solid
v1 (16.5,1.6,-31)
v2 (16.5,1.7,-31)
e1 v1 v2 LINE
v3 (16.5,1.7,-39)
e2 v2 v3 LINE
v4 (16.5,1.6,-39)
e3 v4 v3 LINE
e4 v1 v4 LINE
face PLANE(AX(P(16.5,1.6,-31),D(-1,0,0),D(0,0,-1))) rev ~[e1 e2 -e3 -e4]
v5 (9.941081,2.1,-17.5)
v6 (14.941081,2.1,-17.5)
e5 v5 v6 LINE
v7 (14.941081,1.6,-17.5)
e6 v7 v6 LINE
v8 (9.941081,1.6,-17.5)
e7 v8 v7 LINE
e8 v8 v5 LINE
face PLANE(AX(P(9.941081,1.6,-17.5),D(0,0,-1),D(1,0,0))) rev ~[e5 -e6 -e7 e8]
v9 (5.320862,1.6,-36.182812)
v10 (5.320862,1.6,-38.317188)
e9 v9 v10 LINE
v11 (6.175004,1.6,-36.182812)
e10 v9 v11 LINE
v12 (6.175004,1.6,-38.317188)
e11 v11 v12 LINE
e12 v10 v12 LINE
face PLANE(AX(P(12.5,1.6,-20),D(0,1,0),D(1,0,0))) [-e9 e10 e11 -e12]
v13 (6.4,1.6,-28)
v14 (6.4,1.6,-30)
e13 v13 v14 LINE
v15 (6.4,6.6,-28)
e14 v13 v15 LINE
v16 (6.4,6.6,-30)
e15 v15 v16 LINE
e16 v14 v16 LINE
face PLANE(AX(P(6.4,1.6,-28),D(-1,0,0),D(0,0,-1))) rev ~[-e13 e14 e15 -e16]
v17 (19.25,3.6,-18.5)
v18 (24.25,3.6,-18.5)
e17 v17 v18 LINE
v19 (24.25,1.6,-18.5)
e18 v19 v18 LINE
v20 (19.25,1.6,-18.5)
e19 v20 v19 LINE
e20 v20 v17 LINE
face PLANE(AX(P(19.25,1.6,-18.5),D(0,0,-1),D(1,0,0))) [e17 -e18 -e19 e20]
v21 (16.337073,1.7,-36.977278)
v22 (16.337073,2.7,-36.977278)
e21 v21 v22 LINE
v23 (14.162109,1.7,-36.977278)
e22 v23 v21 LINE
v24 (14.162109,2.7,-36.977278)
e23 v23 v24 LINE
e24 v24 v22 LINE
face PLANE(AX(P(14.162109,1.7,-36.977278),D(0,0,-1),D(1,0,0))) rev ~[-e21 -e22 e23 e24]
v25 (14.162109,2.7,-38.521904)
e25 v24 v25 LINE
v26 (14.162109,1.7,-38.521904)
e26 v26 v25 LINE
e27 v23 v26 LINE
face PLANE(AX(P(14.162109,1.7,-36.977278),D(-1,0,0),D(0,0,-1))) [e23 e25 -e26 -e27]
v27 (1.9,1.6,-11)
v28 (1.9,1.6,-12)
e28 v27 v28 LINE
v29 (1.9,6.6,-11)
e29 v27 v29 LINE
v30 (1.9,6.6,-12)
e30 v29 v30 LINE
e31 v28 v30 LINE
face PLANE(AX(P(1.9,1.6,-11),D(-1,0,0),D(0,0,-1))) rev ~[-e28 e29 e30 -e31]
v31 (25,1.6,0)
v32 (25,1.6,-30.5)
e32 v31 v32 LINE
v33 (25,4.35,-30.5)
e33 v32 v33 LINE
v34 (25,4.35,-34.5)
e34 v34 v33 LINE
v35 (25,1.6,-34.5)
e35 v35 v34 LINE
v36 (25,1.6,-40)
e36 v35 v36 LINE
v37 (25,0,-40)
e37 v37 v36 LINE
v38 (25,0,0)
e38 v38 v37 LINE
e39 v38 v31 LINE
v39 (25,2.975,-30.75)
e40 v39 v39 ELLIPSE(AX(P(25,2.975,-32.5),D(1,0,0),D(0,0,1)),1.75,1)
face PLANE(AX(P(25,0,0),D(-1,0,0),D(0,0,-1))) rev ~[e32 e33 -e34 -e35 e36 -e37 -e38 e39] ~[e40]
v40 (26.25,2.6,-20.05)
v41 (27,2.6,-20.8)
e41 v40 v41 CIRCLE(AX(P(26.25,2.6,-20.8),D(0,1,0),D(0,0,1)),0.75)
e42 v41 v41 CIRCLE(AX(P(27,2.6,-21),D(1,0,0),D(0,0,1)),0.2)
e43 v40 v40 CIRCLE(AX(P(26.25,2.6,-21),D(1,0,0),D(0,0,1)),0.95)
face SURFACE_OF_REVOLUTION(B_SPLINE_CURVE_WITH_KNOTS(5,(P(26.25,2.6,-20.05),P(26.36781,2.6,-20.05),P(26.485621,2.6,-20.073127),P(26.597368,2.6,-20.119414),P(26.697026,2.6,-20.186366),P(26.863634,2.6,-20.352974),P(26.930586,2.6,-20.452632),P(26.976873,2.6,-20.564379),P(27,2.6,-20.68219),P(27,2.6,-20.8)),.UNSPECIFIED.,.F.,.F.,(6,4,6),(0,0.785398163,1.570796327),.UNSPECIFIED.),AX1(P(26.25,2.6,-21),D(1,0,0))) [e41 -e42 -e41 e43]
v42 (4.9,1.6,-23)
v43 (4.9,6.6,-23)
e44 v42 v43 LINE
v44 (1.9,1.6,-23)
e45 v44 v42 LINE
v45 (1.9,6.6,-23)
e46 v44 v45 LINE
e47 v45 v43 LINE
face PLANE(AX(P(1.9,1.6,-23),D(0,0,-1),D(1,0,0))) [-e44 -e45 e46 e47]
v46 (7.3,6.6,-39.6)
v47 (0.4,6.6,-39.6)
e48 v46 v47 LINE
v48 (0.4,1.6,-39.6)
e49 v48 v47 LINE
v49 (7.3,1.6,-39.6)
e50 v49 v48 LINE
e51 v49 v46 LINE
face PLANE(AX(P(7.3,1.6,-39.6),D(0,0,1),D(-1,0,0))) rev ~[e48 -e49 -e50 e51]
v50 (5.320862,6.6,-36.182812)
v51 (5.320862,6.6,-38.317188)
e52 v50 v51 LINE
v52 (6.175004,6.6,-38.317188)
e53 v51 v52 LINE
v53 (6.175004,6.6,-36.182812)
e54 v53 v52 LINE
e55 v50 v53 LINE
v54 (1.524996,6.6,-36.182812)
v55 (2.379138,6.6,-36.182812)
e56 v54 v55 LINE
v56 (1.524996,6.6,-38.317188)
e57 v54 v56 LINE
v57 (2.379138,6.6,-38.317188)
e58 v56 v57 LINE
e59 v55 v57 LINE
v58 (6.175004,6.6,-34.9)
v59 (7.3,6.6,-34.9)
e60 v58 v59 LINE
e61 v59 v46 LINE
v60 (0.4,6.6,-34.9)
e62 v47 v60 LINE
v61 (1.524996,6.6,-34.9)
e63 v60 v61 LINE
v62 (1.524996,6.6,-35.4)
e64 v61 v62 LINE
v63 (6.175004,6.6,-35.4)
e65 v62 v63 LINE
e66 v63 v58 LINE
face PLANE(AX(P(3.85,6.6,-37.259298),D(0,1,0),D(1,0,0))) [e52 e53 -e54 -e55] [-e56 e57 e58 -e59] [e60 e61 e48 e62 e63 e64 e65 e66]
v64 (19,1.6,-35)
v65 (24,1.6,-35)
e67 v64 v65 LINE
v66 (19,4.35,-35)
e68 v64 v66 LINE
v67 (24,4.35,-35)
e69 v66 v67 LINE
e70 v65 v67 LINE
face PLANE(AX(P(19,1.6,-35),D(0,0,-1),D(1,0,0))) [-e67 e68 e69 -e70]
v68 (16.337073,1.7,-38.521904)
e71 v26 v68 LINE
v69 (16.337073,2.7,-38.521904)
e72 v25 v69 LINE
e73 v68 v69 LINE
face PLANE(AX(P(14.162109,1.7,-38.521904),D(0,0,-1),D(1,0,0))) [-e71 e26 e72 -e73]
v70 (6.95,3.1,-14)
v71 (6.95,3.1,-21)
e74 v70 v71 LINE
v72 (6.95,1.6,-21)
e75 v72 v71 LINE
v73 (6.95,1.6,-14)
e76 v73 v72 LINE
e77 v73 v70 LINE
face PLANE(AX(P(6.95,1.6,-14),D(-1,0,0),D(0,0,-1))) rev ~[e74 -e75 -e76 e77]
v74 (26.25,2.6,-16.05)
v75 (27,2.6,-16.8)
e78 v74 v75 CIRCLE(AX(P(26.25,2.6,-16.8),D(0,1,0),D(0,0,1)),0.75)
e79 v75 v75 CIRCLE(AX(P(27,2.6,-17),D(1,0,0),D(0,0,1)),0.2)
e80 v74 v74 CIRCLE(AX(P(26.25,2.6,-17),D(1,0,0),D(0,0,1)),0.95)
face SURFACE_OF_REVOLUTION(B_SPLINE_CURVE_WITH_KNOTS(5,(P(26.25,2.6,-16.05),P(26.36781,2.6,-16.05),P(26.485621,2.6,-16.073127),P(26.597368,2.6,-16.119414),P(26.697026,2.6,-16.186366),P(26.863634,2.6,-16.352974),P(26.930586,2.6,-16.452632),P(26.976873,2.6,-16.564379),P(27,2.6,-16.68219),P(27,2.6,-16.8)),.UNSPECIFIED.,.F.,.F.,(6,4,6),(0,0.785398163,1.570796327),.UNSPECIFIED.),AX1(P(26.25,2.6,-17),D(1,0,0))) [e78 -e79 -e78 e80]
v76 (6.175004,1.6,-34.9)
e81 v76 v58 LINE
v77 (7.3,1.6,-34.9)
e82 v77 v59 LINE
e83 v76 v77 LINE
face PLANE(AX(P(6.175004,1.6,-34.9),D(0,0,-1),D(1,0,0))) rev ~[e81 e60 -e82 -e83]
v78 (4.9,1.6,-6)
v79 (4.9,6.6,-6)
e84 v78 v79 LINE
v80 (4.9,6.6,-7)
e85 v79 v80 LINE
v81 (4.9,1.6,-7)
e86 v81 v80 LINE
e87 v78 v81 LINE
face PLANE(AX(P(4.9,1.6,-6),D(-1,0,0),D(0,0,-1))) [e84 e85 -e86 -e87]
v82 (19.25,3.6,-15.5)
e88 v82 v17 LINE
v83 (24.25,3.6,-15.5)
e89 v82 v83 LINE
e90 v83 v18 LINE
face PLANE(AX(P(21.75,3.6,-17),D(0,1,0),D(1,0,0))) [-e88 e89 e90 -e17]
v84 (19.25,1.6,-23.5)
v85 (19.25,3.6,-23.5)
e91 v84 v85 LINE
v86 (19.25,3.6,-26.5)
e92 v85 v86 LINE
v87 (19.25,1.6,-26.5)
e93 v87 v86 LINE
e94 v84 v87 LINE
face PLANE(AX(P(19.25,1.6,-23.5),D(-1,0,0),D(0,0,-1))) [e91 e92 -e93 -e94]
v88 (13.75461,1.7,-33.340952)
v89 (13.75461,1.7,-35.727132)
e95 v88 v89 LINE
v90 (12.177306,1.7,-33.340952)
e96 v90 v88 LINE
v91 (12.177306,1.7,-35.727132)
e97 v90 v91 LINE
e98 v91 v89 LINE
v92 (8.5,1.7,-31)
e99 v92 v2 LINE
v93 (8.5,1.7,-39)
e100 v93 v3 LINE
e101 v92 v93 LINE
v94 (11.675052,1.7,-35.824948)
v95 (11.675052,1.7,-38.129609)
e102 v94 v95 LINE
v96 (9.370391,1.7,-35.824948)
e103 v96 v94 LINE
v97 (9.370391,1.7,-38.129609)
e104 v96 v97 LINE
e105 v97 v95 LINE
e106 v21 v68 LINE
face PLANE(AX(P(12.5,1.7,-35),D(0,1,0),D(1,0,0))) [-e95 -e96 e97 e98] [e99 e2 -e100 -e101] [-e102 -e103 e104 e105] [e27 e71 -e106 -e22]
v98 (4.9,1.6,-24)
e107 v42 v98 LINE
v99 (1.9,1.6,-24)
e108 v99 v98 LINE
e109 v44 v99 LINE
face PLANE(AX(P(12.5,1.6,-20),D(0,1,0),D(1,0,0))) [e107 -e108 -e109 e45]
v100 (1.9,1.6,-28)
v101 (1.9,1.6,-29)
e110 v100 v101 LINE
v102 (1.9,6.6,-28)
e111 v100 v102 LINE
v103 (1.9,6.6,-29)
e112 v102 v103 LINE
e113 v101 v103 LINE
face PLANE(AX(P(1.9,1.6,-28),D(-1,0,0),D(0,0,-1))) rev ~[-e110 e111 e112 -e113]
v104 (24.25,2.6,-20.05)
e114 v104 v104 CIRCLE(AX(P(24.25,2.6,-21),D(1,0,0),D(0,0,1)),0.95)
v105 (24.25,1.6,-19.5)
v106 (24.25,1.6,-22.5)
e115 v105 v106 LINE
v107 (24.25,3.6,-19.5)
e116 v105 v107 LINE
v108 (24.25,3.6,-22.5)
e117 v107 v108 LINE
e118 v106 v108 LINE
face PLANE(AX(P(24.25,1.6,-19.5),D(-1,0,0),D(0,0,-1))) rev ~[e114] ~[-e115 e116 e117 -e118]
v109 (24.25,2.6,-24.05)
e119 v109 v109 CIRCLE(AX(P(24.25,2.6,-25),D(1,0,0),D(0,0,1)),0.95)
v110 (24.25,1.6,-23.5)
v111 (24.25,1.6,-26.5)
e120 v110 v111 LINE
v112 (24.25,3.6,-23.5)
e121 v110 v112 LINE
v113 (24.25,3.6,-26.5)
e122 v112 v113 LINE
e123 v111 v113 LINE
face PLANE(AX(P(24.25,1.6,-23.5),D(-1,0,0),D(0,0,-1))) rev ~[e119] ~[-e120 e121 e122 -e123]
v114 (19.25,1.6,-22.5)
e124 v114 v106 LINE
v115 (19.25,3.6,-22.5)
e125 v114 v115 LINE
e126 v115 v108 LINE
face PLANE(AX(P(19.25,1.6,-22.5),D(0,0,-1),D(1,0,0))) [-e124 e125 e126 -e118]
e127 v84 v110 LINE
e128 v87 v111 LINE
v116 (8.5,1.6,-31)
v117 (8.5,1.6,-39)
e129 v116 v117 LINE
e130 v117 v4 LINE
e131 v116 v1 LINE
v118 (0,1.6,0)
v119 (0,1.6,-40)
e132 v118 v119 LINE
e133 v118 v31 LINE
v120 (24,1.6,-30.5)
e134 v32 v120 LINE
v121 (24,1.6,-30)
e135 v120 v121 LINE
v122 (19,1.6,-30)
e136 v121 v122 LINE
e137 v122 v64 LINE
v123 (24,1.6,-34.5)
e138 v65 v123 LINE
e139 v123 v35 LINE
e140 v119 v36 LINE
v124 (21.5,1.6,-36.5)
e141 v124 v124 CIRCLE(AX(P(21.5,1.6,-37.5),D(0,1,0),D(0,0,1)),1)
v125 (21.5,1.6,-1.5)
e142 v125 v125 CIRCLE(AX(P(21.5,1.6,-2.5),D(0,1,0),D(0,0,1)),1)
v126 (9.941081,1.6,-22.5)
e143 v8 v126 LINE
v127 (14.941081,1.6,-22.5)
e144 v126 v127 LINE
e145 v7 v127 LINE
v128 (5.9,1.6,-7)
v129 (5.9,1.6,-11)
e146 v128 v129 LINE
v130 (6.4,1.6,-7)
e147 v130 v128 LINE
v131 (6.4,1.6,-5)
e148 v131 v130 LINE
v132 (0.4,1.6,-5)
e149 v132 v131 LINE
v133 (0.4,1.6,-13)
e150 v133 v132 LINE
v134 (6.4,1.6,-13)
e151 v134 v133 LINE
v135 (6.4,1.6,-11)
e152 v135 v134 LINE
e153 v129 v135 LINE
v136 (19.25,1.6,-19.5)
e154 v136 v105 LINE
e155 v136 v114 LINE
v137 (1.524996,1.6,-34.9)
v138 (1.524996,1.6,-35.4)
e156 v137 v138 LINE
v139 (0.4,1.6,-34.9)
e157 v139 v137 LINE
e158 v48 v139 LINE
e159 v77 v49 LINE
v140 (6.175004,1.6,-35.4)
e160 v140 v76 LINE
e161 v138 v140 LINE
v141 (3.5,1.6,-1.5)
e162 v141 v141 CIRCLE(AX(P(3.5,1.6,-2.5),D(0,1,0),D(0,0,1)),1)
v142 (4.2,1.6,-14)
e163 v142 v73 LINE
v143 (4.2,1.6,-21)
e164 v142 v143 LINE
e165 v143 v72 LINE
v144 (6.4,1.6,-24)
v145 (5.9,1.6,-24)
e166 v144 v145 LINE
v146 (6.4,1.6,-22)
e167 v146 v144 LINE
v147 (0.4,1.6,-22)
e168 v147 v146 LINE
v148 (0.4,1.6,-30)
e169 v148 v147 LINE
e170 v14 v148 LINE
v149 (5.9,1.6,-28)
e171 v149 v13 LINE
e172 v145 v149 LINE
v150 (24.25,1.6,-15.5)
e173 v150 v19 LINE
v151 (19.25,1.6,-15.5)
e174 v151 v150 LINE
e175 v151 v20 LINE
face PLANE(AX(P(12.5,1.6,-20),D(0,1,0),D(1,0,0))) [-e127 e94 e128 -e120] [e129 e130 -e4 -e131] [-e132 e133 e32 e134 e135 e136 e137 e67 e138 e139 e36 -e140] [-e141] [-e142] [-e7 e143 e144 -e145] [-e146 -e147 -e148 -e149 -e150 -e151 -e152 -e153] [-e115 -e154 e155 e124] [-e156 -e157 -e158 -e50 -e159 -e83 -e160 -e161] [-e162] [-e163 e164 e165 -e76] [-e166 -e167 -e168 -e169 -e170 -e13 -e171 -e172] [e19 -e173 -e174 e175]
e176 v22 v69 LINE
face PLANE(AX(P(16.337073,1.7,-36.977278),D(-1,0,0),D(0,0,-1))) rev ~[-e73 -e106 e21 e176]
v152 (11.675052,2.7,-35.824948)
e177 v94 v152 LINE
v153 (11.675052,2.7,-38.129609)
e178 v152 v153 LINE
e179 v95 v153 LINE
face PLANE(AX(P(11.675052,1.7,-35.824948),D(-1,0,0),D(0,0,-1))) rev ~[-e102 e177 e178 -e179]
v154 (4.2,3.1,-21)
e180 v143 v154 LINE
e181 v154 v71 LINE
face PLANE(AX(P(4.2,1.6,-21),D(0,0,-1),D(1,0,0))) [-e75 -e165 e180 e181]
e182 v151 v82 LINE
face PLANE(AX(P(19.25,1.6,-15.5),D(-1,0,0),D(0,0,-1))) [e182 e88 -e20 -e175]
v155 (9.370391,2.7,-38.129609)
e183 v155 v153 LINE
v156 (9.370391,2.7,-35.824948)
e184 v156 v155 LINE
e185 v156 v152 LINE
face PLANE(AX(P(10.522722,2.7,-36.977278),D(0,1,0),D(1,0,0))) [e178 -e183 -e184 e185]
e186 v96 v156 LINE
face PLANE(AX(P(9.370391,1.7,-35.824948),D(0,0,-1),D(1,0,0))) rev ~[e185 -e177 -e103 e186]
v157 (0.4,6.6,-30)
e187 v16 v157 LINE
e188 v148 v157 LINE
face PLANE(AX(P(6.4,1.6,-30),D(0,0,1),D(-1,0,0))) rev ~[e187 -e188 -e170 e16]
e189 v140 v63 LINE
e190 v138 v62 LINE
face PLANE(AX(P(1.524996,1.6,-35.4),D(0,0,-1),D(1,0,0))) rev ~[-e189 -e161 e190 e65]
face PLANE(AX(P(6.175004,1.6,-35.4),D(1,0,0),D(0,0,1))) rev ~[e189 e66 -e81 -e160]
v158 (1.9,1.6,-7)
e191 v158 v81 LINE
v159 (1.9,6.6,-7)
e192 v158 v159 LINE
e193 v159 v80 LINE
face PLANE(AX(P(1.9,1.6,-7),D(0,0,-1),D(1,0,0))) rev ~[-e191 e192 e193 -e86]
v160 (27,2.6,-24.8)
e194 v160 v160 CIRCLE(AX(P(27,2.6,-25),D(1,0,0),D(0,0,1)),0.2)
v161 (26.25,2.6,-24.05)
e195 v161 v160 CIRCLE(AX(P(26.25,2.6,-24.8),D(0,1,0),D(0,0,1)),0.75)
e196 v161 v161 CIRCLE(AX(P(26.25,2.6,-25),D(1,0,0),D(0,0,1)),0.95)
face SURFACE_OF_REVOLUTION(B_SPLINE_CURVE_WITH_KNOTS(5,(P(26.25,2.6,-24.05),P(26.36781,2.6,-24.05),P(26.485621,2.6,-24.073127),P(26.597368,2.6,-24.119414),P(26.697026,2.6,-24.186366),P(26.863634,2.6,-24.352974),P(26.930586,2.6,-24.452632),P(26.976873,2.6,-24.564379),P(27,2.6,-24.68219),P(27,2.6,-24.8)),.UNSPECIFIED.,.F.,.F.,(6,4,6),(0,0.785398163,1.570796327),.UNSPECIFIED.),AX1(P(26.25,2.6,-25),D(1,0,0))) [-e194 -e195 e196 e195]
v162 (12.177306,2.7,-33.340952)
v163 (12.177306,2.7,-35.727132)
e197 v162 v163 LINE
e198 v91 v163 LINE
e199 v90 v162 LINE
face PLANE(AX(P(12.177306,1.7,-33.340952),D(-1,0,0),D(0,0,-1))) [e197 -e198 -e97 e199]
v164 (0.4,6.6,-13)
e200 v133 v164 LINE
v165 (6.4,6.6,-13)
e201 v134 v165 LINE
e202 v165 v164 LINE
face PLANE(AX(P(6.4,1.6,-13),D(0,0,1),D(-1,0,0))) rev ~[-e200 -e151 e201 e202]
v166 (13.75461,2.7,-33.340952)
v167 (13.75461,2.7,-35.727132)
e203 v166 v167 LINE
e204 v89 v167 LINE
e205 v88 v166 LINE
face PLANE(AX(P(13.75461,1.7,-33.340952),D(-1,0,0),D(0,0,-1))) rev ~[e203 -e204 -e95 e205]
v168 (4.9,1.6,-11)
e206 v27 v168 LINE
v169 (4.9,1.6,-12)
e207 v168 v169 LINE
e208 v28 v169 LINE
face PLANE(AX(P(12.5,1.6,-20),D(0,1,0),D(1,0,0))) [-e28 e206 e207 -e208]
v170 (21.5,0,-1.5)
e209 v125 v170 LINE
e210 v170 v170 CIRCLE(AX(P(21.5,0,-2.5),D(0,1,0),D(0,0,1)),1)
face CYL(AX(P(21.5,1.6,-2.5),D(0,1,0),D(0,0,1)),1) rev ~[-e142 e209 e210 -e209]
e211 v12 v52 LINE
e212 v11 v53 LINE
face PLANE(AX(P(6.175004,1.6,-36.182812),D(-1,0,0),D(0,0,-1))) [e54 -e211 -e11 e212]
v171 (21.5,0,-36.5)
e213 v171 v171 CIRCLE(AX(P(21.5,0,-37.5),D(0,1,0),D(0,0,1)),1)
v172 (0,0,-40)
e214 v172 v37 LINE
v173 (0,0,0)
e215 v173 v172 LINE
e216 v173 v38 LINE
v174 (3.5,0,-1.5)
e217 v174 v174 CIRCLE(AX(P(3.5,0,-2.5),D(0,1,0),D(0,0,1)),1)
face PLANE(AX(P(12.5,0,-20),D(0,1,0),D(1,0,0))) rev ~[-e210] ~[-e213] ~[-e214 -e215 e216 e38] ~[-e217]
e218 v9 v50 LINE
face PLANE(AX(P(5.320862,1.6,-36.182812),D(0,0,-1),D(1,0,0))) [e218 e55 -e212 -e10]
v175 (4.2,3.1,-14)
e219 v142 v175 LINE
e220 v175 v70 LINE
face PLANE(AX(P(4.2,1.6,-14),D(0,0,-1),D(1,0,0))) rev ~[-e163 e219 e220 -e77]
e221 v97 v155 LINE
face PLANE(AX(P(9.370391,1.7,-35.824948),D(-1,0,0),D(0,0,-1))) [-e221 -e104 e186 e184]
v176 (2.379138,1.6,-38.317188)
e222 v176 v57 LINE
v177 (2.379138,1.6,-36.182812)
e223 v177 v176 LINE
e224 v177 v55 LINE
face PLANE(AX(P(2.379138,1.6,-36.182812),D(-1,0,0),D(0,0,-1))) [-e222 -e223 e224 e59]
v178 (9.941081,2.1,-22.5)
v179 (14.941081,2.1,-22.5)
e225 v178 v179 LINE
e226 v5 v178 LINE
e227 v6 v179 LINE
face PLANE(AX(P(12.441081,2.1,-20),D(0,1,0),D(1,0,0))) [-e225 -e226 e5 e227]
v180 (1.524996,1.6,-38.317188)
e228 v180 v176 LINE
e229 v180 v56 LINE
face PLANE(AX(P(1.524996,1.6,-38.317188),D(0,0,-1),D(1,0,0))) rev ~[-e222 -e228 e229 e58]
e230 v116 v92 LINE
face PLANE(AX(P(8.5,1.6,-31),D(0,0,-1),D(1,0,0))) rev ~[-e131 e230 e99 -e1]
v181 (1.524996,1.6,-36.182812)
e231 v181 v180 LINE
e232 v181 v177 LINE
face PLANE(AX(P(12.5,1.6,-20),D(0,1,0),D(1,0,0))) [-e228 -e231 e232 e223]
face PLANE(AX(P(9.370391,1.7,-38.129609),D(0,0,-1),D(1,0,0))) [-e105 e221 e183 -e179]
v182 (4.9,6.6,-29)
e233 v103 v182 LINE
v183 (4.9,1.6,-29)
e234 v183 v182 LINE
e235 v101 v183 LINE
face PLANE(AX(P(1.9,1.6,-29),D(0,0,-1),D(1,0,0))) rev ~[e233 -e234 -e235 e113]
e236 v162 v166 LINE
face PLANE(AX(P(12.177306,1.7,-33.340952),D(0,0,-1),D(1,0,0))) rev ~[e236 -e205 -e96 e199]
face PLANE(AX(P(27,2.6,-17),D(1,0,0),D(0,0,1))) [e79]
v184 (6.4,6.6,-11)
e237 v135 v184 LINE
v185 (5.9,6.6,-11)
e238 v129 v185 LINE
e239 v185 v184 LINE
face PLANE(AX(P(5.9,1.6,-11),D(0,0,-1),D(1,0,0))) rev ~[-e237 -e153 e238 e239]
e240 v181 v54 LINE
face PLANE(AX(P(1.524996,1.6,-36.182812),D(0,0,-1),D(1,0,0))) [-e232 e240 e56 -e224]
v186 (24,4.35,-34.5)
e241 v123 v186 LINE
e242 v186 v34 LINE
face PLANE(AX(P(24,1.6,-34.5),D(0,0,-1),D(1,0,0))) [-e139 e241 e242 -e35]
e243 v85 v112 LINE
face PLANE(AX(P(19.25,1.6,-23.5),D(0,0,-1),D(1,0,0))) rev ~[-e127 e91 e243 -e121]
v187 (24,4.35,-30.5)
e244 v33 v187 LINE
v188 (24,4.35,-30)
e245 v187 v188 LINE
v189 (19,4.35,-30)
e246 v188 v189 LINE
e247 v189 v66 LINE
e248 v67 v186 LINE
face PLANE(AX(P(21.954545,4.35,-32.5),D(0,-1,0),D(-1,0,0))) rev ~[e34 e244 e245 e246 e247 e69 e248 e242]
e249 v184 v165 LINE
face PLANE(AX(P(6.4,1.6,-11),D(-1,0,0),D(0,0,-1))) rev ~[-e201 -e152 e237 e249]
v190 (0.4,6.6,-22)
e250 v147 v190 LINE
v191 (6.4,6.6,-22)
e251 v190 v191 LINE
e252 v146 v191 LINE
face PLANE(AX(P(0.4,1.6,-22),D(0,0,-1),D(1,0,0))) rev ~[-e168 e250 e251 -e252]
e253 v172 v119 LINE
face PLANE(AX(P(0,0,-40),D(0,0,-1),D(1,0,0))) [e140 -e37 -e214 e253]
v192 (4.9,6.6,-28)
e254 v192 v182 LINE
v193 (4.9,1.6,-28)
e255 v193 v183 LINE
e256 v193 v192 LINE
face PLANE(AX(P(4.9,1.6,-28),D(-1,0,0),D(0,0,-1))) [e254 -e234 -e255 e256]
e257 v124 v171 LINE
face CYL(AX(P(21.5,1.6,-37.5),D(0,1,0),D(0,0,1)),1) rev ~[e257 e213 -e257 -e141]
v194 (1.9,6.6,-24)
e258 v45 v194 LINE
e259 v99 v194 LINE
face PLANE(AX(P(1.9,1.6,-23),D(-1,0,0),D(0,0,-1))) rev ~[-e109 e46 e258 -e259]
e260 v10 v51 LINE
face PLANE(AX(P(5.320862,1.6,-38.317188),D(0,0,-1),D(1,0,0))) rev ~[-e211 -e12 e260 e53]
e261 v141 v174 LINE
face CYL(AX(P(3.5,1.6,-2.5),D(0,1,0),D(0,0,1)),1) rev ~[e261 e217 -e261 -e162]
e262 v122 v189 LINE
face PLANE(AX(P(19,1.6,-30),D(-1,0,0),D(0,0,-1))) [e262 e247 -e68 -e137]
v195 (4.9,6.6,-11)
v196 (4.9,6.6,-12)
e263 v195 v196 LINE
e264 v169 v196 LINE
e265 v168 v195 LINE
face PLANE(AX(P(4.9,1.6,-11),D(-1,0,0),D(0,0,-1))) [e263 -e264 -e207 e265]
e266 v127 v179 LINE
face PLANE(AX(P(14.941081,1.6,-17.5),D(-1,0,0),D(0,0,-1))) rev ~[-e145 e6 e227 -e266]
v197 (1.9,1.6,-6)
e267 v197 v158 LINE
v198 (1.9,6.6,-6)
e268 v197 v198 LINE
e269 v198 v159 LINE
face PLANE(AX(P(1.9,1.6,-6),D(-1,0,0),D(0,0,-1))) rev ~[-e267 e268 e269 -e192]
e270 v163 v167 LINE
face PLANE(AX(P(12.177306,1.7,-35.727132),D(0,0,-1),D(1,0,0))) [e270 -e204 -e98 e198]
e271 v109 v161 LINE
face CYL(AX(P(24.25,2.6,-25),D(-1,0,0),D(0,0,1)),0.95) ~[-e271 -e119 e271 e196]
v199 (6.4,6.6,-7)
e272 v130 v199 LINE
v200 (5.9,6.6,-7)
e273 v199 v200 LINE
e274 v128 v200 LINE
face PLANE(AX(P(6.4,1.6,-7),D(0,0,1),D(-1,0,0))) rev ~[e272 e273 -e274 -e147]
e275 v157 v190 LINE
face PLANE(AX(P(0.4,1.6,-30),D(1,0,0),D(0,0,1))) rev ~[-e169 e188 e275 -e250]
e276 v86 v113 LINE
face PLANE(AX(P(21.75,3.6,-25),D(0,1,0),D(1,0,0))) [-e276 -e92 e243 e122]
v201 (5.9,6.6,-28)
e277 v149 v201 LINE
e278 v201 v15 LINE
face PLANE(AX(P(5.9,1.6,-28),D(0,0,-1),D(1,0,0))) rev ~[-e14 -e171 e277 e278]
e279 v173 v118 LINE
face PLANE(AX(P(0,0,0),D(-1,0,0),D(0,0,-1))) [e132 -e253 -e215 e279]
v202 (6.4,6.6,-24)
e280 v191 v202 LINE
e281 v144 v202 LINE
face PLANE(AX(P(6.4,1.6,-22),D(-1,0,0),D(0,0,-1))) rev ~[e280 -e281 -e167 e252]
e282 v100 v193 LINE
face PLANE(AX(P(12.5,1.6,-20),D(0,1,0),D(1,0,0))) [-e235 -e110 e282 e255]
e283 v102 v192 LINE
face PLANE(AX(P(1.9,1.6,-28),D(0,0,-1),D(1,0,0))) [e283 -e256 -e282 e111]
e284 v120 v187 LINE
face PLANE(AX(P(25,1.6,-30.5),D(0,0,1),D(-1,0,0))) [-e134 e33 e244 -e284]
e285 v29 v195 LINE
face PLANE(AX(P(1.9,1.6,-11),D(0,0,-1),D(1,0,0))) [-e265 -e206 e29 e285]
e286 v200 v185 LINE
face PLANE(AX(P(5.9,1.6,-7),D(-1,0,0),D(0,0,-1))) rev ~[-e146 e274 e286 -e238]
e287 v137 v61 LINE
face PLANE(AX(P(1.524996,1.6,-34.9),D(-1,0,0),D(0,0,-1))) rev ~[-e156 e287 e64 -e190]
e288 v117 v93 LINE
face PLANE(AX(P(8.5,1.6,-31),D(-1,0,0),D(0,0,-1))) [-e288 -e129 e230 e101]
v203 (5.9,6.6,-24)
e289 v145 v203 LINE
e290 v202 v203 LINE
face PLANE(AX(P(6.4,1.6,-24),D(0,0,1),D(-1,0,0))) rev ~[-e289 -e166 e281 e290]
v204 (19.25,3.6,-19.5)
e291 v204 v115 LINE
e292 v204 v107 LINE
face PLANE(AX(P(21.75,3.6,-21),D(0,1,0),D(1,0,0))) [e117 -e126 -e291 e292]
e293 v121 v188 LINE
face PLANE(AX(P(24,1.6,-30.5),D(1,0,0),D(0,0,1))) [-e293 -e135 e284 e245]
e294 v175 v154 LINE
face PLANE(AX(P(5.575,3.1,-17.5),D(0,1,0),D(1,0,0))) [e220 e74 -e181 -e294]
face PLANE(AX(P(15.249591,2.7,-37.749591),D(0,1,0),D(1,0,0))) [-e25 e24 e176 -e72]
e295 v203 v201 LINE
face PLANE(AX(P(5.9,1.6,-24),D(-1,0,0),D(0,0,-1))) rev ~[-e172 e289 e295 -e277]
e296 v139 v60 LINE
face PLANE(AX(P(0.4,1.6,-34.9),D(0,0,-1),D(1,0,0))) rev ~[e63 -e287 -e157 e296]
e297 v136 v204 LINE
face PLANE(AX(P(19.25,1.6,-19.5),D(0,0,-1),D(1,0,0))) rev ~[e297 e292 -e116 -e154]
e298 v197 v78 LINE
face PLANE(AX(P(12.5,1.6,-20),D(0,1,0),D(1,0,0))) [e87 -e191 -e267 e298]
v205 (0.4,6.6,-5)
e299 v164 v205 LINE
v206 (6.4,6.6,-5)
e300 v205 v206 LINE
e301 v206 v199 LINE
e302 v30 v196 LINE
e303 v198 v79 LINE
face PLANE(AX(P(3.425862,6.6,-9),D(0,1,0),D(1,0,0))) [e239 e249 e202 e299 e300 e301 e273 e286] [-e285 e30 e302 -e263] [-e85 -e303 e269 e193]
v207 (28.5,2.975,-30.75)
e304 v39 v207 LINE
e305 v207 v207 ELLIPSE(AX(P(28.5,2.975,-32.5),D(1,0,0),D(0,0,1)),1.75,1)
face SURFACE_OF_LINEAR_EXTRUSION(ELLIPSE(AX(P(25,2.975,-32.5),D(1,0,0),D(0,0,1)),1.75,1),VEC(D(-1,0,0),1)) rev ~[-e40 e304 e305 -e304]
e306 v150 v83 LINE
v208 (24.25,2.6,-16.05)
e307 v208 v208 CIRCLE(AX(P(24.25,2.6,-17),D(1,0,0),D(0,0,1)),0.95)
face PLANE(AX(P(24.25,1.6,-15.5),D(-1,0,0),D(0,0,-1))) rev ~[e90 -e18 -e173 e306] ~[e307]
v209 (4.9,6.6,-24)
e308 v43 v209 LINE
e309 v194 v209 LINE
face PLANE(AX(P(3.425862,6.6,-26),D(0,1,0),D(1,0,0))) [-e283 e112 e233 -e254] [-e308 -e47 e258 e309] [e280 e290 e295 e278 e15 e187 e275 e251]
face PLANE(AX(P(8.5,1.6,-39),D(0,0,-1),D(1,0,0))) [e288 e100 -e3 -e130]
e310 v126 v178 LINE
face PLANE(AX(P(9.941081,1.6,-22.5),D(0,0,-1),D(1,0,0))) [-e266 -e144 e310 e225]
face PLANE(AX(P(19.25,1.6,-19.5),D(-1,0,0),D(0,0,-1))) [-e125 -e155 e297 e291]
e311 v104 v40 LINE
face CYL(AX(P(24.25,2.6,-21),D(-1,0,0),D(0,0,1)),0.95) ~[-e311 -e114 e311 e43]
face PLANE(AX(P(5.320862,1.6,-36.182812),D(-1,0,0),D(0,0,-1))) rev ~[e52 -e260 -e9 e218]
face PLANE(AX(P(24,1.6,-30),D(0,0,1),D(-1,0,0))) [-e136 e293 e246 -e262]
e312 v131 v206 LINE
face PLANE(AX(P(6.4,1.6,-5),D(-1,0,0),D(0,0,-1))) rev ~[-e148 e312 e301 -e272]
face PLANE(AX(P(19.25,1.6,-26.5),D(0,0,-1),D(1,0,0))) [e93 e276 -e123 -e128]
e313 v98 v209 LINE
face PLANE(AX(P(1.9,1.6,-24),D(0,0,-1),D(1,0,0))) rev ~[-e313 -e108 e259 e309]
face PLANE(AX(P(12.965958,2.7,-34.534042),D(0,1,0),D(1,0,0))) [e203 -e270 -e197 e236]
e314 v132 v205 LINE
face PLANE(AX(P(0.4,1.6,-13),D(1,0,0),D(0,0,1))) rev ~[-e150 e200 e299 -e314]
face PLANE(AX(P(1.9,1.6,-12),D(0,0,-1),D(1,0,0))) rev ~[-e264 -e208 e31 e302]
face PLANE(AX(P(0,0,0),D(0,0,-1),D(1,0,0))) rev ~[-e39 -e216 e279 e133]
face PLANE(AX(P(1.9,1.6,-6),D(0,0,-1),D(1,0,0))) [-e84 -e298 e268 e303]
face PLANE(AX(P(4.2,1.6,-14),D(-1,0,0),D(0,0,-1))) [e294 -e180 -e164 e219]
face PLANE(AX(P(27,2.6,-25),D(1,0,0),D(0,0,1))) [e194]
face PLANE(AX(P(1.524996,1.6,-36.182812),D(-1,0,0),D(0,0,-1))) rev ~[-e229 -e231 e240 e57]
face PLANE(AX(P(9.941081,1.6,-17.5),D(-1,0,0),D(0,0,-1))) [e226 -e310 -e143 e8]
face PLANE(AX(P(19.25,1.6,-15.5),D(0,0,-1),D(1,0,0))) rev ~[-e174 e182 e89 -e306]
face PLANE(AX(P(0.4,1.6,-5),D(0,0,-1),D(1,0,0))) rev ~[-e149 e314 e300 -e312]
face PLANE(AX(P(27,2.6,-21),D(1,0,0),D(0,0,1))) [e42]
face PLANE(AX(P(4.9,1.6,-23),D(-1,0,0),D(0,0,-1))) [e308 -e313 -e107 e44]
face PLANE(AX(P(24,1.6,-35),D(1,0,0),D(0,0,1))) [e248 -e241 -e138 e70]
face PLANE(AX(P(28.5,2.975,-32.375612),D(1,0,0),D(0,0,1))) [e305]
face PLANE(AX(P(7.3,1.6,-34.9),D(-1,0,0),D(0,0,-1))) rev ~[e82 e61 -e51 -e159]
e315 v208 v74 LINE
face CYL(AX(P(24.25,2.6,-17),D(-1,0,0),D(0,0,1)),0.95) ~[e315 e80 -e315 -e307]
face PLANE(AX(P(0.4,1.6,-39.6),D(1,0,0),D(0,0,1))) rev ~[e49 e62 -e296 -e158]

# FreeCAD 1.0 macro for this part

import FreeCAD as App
import Part
import Sketcher
from FreeCAD import Vector


def edges_at(feature, points):
    """Names of the edges that pass closest to the given points."""
    edges = feature.Shape.Edges
    near = lambda p: min(range(len(edges)), key=lambda i: edges[i].distToShape(Part.Vertex(*p))[0])
    return sorted({f"Edge{near(p) + 1}" for p in points})


def add_polygon(sketch, points):
    """Adds a closed chain of lines whose ends are joined by coincident constraints."""
    first, n = sketch.GeometryCount, len(points)
    for a, b in zip(points, points[1:] + points[:1]):
        sketch.addGeometry(Part.LineSegment(App.Vector(*a, 0), App.Vector(*b, 0)), False)
    for i in range(n):
        sketch.addConstraint(Sketcher.Constraint("Coincident", first + i, 2, first + (i + 1) % n, 1))

doc = App.newDocument("Part")
body = doc.addObject("PartDesign::Body", "Body")

# Sketch on XZ plane
sketch1 = body.newObject("Sketcher::SketchObject", "Sketch")
sketch1.AttachmentSupport = (doc.getObject("XZ_Plane"), [""])
sketch1.MapMode = "FlatFace"
add_polygon(sketch1, [(0, -40), (0, 0), (25, 0), (25, -40)])  # lines 0-3
sketch1.addConstraint(Sketcher.Constraint("Vertical", 0))
sketch1.addConstraint(Sketcher.Constraint("Horizontal", 1))
sketch1.addConstraint(Sketcher.Constraint("Vertical", 2))
sketch1.addConstraint(Sketcher.Constraint("Horizontal", 3))
sketch1.addConstraint(Sketcher.Constraint("Coincident", 0, 2, -1, 1))
sketch1.addConstraint(Sketcher.Constraint("DistanceX", 1, 1, 1, 2, 25.0))
sketch1.addConstraint(Sketcher.Constraint("DistanceY", 0, 1, 0, 2, 40.0))
pad1 = body.newObject("PartDesign::Pad", "Pad")
pad1.Profile = sketch1
pad1.Length = 1.6
pad1.Reversed = True

# Sketch on XZ plane
sketch2 = body.newObject("Sketcher::SketchObject", "Sketch001")
sketch2.AttachmentSupport = (doc.getObject("XZ_Plane"), [""])
sketch2.MapMode = "FlatFace"
sketch2.AttachmentOffset = App.Placement(Vector(0, 0, -1.6), App.Rotation())
add_polygon(sketch2, [(10, -22), (10, -18), (15, -18), (15, -22)])  # lines 0-3
sketch2.addConstraint(Sketcher.Constraint("Vertical", 0))
sketch2.addConstraint(Sketcher.Constraint("Horizontal", 1))
sketch2.addConstraint(Sketcher.Constraint("Vertical", 2))
sketch2.addConstraint(Sketcher.Constraint("Horizontal", 3))
sketch2.addConstraint(Sketcher.Constraint("Equal", 3, 0))
sketch2.addConstraint(Sketcher.Constraint("DistanceX", 1, 1, 1, 2, 5.0))
sketch2.addConstraint(Sketcher.Constraint("DistanceY", 0, 2, -1, 1, 17.5))
sketch2.addConstraint(Sketcher.Constraint("DistanceX", -1, 1, 0, 2, 9.941081))
pad2 = body.newObject("PartDesign::Pad", "Pad001")
pad2.Profile = sketch2
pad2.Length = 0.5
pad2.Reversed = True

# Sketch on XZ plane
sketch3 = body.newObject("Sketcher::SketchObject", "Sketch002")
sketch3.AttachmentSupport = (doc.getObject("XZ_Plane"), [""])
sketch3.MapMode = "FlatFace"
sketch3.AttachmentOffset = App.Placement(Vector(0, 0, -1.6), App.Rotation())
add_polygon(sketch3, [(19.2, -18.5), (19.2, -15.5), (24.2, -15.5), (24.2, -18.5)])  # lines 0-3
sketch3.addConstraint(Sketcher.Constraint("Vertical", 0))
sketch3.addConstraint(Sketcher.Constraint("Horizontal", 1))
sketch3.addConstraint(Sketcher.Constraint("Vertical", 2))
sketch3.addConstraint(Sketcher.Constraint("Horizontal", 3))
sketch3.addConstraint(Sketcher.Constraint("DistanceX", 1, 1, 1, 2, 5.0))
sketch3.addConstraint(Sketcher.Constraint("DistanceY", 0, 1, 0, 2, 3.0))
sketch3.addConstraint(Sketcher.Constraint("DistanceY", 0, 2, -1, 1, 15.5))
sketch3.addConstraint(Sketcher.Constraint("DistanceX", -1, 1, 0, 2, 19.25))
pad3 = body.newObject("PartDesign::Pad", "Pad002")
pad3.Profile = sketch3
pad3.Length = 2
pad3.Reversed = True

# Sketch on YZ plane
sketch4 = body.newObject("Sketcher::SketchObject", "Sketch003")
sketch4.AttachmentSupport = (doc.getObject("YZ_Plane"), [""])
sketch4.MapMode = "FlatFace"
sketch4.AttachmentOffset = App.Placement(Vector(0, 0, 24.25), App.Rotation())
sketch4.addGeometry(Part.Circle(Vector(2.6, -17, 0), Vector(0, 0, 1), 0.9), False)
sketch4.addConstraint(Sketcher.Constraint("Diameter", 0, 1.9))
sketch4.addConstraint(Sketcher.Constraint("DistanceY", 0, 3, -1, 1, 17.0))
sketch4.addConstraint(Sketcher.Constraint("DistanceX", -1, 1, 0, 3, 2.6))
pad4 = body.newObject("PartDesign::Pad", "Pad003")
pad4.Profile = sketch4
pad4.Length = 2.75
doc.recompute()

fillet = body.newObject("PartDesign::Fillet", "Fillet")
fillet.Base = (pad4, edges_at(pad4, [(27, 2.6, -17.95)]))
fillet.Radius = 0.75
doc.recompute()

linearpattern = body.newObject("PartDesign::LinearPattern", "LinearPattern")
linearpattern.Originals = [pad3, pad4]
linearpattern.Direction = (doc.getObject("Z_Axis"), [""])
linearpattern.Mode = "offset"
linearpattern.Offset = 4
linearpattern.Occurrences = 3
linearpattern.Reversed = True
body.Tip = linearpattern
doc.recompute()

fillet2 = body.newObject("PartDesign::Fillet", "Fillet001")
fillet2.Base = (linearpattern, edges_at(linearpattern, [(27, 2.6, -21.95), (27, 2.6, -25.95)]))
fillet2.Radius = 0.75

# Sketch on XZ plane
sketch5 = body.newObject("Sketcher::SketchObject", "Sketch004")
sketch5.AttachmentSupport = (doc.getObject("XZ_Plane"), [""])
sketch5.MapMode = "FlatFace"
sketch5.AttachmentOffset = App.Placement(Vector(0, 0, -1.6), App.Rotation())
add_polygon(sketch5, [(24, -30), (24, -30.5), (25, -30.5), (25, -34.5), (24, -34.5), (24, -35), (19, -35), (19, -30)])  # lines 0-7
sketch5.addConstraint(Sketcher.Constraint("Vertical", 0))
sketch5.addConstraint(Sketcher.Constraint("Horizontal", 1))
sketch5.addConstraint(Sketcher.Constraint("Vertical", 2))
sketch5.addConstraint(Sketcher.Constraint("Horizontal", 3))
sketch5.addConstraint(Sketcher.Constraint("Vertical", 4))
sketch5.addConstraint(Sketcher.Constraint("Horizontal", 5))
sketch5.addConstraint(Sketcher.Constraint("Vertical", 6))
sketch5.addConstraint(Sketcher.Constraint("Horizontal", 7))
sketch5.addConstraint(Sketcher.Constraint("Vertical", 0, 2, 3, 2))
sketch5.addConstraint(Sketcher.Constraint("Equal", 0, 4))
sketch5.addConstraint(Sketcher.Constraint("Equal", 7, 6))
sketch5.addConstraint(Sketcher.Constraint("DistanceX", 1, 1, 1, 2, 1.0))
sketch5.addConstraint(Sketcher.Constraint("DistanceX", 5, 2, 5, 1, 5.0))
sketch5.addConstraint(Sketcher.Constraint("DistanceY", 2, 2, 2, 1, 4.0))
sketch5.addConstraint(Sketcher.Constraint("DistanceX", -1, 1, 0, 2, 24.0))
sketch5.addConstraint(Sketcher.Constraint("DistanceY", 4, 2, -1, 1, 35.0))
pad5 = body.newObject("PartDesign::Pad", "Pad004")
pad5.Profile = sketch5
pad5.Length = 2.75
pad5.Reversed = True

# Sketch on YZ plane
sketch6 = body.newObject("Sketcher::SketchObject", "Sketch005")
sketch6.AttachmentSupport = (doc.getObject("YZ_Plane"), [""])
sketch6.MapMode = "FlatFace"
sketch6.AttachmentOffset = App.Placement(Vector(0, 0, 25), App.Rotation())
sketch6.addGeometry(Part.Ellipse(Vector(2.975, -30.75, 0), Vector(1.975, -32.5, 0), Vector(2.975, -32.5, 0)), False)
sketch6.addConstraint(Sketcher.Constraint("Block", 0))
pad6 = body.newObject("PartDesign::Pad", "Pad005")
pad6.Profile = sketch6
pad6.Length = 3.5

# Sketch on XZ plane
sketch7 = body.newObject("Sketcher::SketchObject", "Sketch006")
sketch7.AttachmentSupport = (doc.getObject("XZ_Plane"), [""])
sketch7.MapMode = "FlatFace"
sketch7.AttachmentOffset = App.Placement(Vector(0, 0, -1.6), App.Rotation())
add_polygon(sketch7, [(8, -39), (8, -31), (16, -31), (16, -39)])  # lines 0-3
sketch7.addConstraint(Sketcher.Constraint("Vertical", 0))
sketch7.addConstraint(Sketcher.Constraint("Horizontal", 1))
sketch7.addConstraint(Sketcher.Constraint("Vertical", 2))
sketch7.addConstraint(Sketcher.Constraint("Horizontal", 3))
sketch7.addConstraint(Sketcher.Constraint("Equal", 3, 0))
sketch7.addConstraint(Sketcher.Constraint("DistanceX", 1, 1, 1, 2, 8.0))
sketch7.addConstraint(Sketcher.Constraint("DistanceY", 0, 2, -1, 1, 31.0))
sketch7.addConstraint(Sketcher.Constraint("DistanceX", -1, 1, 0, 2, 8.5))
pad7 = body.newObject("PartDesign::Pad", "Pad006")
pad7.Profile = sketch7
pad7.Length = 0.1
pad7.Reversed = True

# Sketch on XZ plane
sketch8 = body.newObject("Sketcher::SketchObject", "Sketch007")
sketch8.AttachmentSupport = (doc.getObject("XZ_Plane"), [""])
sketch8.MapMode = "FlatFace"
sketch8.AttachmentOffset = App.Placement(Vector(0, 0, -1.7), App.Rotation())
add_polygon(sketch8, [(9.4, -38.1), (9.4, -35.8), (11.7, -35.8), (11.7, -38.1)])  # lines 0-3
add_polygon(sketch8, [(12.2, -35.7), (12.2, -33.3), (13.8, -33.3), (13.8, -35.7)])  # lines 4-7
add_polygon(sketch8, [(14.2, -38.5), (14.2, -37), (16.3, -37), (16.3, -38.5)])  # lines 8-11
sketch8.addConstraint(Sketcher.Constraint("Vertical", 0))
sketch8.addConstraint(Sketcher.Constraint("Horizontal", 1))
sketch8.addConstraint(Sketcher.Constraint("Vertical", 2))
sketch8.addConstraint(Sketcher.Constraint("Horizontal", 3))
sketch8.addConstraint(Sketcher.Constraint("Vertical", 4))
sketch8.addConstraint(Sketcher.Constraint("Horizontal", 5))
sketch8.addConstraint(Sketcher.Constraint("Vertical", 6))
sketch8.addConstraint(Sketcher.Constraint("Horizontal", 7))
sketch8.addConstraint(Sketcher.Constraint("Vertical", 8))
sketch8.addConstraint(Sketcher.Constraint("Horizontal", 9))
sketch8.addConstraint(Sketcher.Constraint("Vertical", 10))
sketch8.addConstraint(Sketcher.Constraint("Horizontal", 11))
sketch8.addConstraint(Sketcher.Constraint("Equal", 3, 0))
sketch8.addConstraint(Sketcher.Constraint("DistanceX", 1, 1, 1, 2, 2.304661))
sketch8.addConstraint(Sketcher.Constraint("DistanceY", 4, 1, 4, 2, 2.38618))
sketch8.addConstraint(Sketcher.Constraint("DistanceX", 6, 2, 8, 2, 0.407499))
sketch8.addConstraint(Sketcher.Constraint("DistanceX", 5, 1, 5, 2, 1.577305))
sketch8.addConstraint(Sketcher.Constraint("DistanceX", 9, 1, 9, 2, 2.174964))
sketch8.addConstraint(Sketcher.Constraint("DistanceY", 8, 1, 8, 2, 1.544625))
sketch8.addConstraint(Sketcher.Constraint("DistanceX", -1, 1, 0, 2, 9.370391))
sketch8.addConstraint(Sketcher.Constraint("DistanceY", 2, 2, -1, 1, 38.129609))
sketch8.addConstraint(Sketcher.Constraint("DistanceX", -1, 1, 5, 2, 13.75461))
sketch8.addConstraint(Sketcher.Constraint("DistanceY", 6, 2, -1, 1, 35.727132))
sketch8.addConstraint(Sketcher.Constraint("DistanceY", 8, 2, -1, 1, 36.977278))
pad8 = body.newObject("PartDesign::Pad", "Pad007")
pad8.Profile = sketch8
pad8.Length = 1
pad8.Reversed = True

# Sketch on XZ plane
sketch9 = body.newObject("Sketcher::SketchObject", "Sketch008")
sketch9.AttachmentSupport = (doc.getObject("XZ_Plane"), [""])
sketch9.MapMode = "FlatFace"
sketch9.AttachmentOffset = App.Placement(Vector(0, 0, -1.6), App.Rotation())
add_polygon(sketch9, [(4.2, -21), (4.2, -14), (7, -14), (7, -21)])  # lines 0-3
sketch9.addConstraint(Sketcher.Constraint("Vertical", 0))
sketch9.addConstraint(Sketcher.Constraint("Horizontal", 1))
sketch9.addConstraint(Sketcher.Constraint("Vertical", 2))
sketch9.addConstraint(Sketcher.Constraint("Horizontal", 3))
sketch9.addConstraint(Sketcher.Constraint("DistanceY", 0, 1, 0, 2, 7.0))
sketch9.addConstraint(Sketcher.Constraint("DistanceY", 0, 2, -1, 1, 14.0))
sketch9.addConstraint(Sketcher.Constraint("DistanceX", 1, 1, 1, 2, 2.75))
sketch9.addConstraint(Sketcher.Constraint("DistanceX", -1, 1, 0, 2, 4.2))
pad9 = body.newObject("PartDesign::Pad", "Pad008")
pad9.Profile = sketch9
pad9.Length = 1.5
pad9.Reversed = True

# Sketch on XZ plane
sketch10 = body.newObject("Sketcher::SketchObject", "Sketch009")
sketch10.AttachmentSupport = (doc.getObject("XZ_Plane"), [""])
sketch10.MapMode = "FlatFace"
sketch10.AttachmentOffset = App.Placement(Vector(0, 0, -1.6), App.Rotation())
add_polygon(sketch10, [(6.4, -13), (0.4, -13), (0.4, -5), (6.4, -5), (6.4, -7), (5.9, -7), (5.9, -11), (6.4, -11)])  # lines 0-7
add_polygon(sketch10, [(4.9, -6), (1.9, -6), (1.9, -7), (4.9, -7)])  # lines 8-11
add_polygon(sketch10, [(4.9, -11), (1.9, -11), (1.9, -12), (4.9, -12)])  # lines 12-15
sketch10.addConstraint(Sketcher.Constraint("Horizontal", 0))
sketch10.addConstraint(Sketcher.Constraint("Vertical", 1))
sketch10.addConstraint(Sketcher.Constraint("Horizontal", 2))
sketch10.addConstraint(Sketcher.Constraint("Vertical", 3))
sketch10.addConstraint(Sketcher.Constraint("Horizontal", 4))
sketch10.addConstraint(Sketcher.Constraint("Vertical", 5))
sketch10.addConstraint(Sketcher.Constraint("Horizontal", 6))
sketch10.addConstraint(Sketcher.Constraint("Vertical", 7))
sketch10.addConstraint(Sketcher.Constraint("Horizontal", 8))
sketch10.addConstraint(Sketcher.Constraint("Vertical", 9))
sketch10.addConstraint(Sketcher.Constraint("Horizontal", 10))
sketch10.addConstraint(Sketcher.Constraint("Vertical", 11))
sketch10.addConstraint(Sketcher.Constraint("Horizontal", 12))
sketch10.addConstraint(Sketcher.Constraint("Vertical", 13))
sketch10.addConstraint(Sketcher.Constraint("Horizontal", 14))
sketch10.addConstraint(Sketcher.Constraint("Vertical", 15))
sketch10.addConstraint(Sketcher.Constraint("Horizontal", 4, 2, 9, 2))
sketch10.addConstraint(Sketcher.Constraint("Horizontal", 6, 2, 12, 2))
sketch10.addConstraint(Sketcher.Constraint("Vertical", 3, 2, 6, 2))
sketch10.addConstraint(Sketcher.Constraint("Vertical", 9, 2, 12, 2))
sketch10.addConstraint(Sketcher.Constraint("Vertical", 11, 2, 14, 2))
sketch10.addConstraint(Sketcher.Constraint("Equal", 3, 7))
sketch10.addConstraint(Sketcher.Constraint("Equal", 11, 13))
sketch10.addConstraint(Sketcher.Constraint("DistanceX", 0, 2, 0, 1, 6.0))
sketch10.addConstraint(Sketcher.Constraint("DistanceX", 8, 2, 8, 1, 3.0))
sketch10.addConstraint(Sketcher.Constraint("DistanceY", 1, 1, 1, 2, 8.0))
sketch10.addConstraint(Sketcher.Constraint("DistanceY", 3, 2, 3, 1, 2.0))
sketch10.addConstraint(Sketcher.Constraint("DistanceY", 9, 2, 9, 1, 1.0))
sketch10.addConstraint(Sketcher.Constraint("DistanceX", 4, 2, 4, 1, 0.5))
sketch10.addConstraint(Sketcher.Constraint("DistanceY", 0, 2, -1, 1, 13.0))
sketch10.addConstraint(Sketcher.Constraint("DistanceX", 8, 2, 4, 2, 4.0))
sketch10.addConstraint(Sketcher.Constraint("DistanceX", -1, 1, 0, 2, 0.4))
pad10 = body.newObject("PartDesign::Pad", "Pad009")
pad10.Profile = sketch10
pad10.Length = 5
pad10.Reversed = True
doc.recompute()

linearpattern2 = body.newObject("PartDesign::LinearPattern", "LinearPattern001")
linearpattern2.Originals = [pad10]
linearpattern2.Direction = (doc.getObject("Z_Axis"), [""])
linearpattern2.Mode = "offset"
linearpattern2.Offset = 17
linearpattern2.Occurrences = 2
linearpattern2.Reversed = True
body.Tip = linearpattern2

# Sketch on XZ plane
sketch11 = body.newObject("Sketcher::SketchObject", "Sketch010")
sketch11.AttachmentSupport = (doc.getObject("XZ_Plane"), [""])
sketch11.MapMode = "FlatFace"
sketch11.AttachmentOffset = App.Placement(Vector(0, 0, -1.6), App.Rotation())
add_polygon(sketch11, [(7.3, -39.6), (0.4, -39.6), (0.4, -34.9), (1.5, -34.9), (1.5, -35.4), (6.2, -35.4), (6.2, -34.9), (7.3, -34.9)])  # lines 0-7
add_polygon(sketch11, [(2.4, -36.2), (1.5, -36.2), (1.5, -38.3), (2.4, -38.3)])  # lines 8-11
add_polygon(sketch11, [(6.2, -36.2), (5.3, -36.2), (5.3, -38.3), (6.2, -38.3)])  # lines 12-15
sketch11.addConstraint(Sketcher.Constraint("Horizontal", 0))
sketch11.addConstraint(Sketcher.Constraint("Vertical", 1))
sketch11.addConstraint(Sketcher.Constraint("Horizontal", 2))
sketch11.addConstraint(Sketcher.Constraint("Vertical", 3))
sketch11.addConstraint(Sketcher.Constraint("Horizontal", 4))
sketch11.addConstraint(Sketcher.Constraint("Vertical", 5))
sketch11.addConstraint(Sketcher.Constraint("Horizontal", 6))
sketch11.addConstraint(Sketcher.Constraint("Vertical", 7))
sketch11.addConstraint(Sketcher.Constraint("Horizontal", 8))
sketch11.addConstraint(Sketcher.Constraint("Vertical", 9))
sketch11.addConstraint(Sketcher.Constraint("Horizontal", 10))
sketch11.addConstraint(Sketcher.Constraint("Vertical", 11))
sketch11.addConstraint(Sketcher.Constraint("Horizontal", 12))
sketch11.addConstraint(Sketcher.Constraint("Vertical", 13))
sketch11.addConstraint(Sketcher.Constraint("Horizontal", 14))
sketch11.addConstraint(Sketcher.Constraint("Vertical", 15))
sketch11.addConstraint(Sketcher.Constraint("Horizontal", 2, 2, 5, 2))
sketch11.addConstraint(Sketcher.Constraint("Horizontal", 11, 2, 12, 2))
sketch11.addConstraint(Sketcher.Constraint("Horizontal", 10, 2, 13, 2))
sketch11.addConstraint(Sketcher.Constraint("Vertical", 3, 2, 8, 2))
sketch11.addConstraint(Sketcher.Constraint("Vertical", 5, 2, 14, 2))
sketch11.addConstraint(Sketcher.Constraint("Equal", 2, 6))
sketch11.addConstraint(Sketcher.Constraint("Equal", 10, 12))
sketch11.addConstraint(Sketcher.Constraint("DistanceX", 0, 2, 0, 1, 6.9))
sketch11.addConstraint(Sketcher.Constraint("DistanceY", 1, 1, 1, 2, 4.7))
sketch11.addConstraint(Sketcher.Constraint("DistanceY", 3, 2, 3, 1, 0.5))
sketch11.addConstraint(Sketcher.Constraint("DistanceX", -1, 1, 0, 2, 0.4))
sketch11.addConstraint(Sketcher.Constraint("DistanceY", 0, 2, -1, 1, 39.6))
sketch11.addConstraint(Sketcher.Constraint("DistanceX", 8, 2, 8, 1, 0.854142))
sketch11.addConstraint(Sketcher.Constraint("DistanceX", 2, 1, 2, 2, 1.124996))
sketch11.addConstraint(Sketcher.Constraint("DistanceY", 9, 2, 9, 1, 2.134375))
sketch11.addConstraint(Sketcher.Constraint("DistanceY", 8, 2, -1, 1, 36.182812))
pad11 = body.newObject("PartDesign::Pad", "Pad010")
pad11.Profile = sketch11
pad11.Length = 5
pad11.Reversed = True

# Sketch on XZ plane
sketch12 = body.newObject("Sketcher::SketchObject", "Sketch011")
sketch12.AttachmentSupport = (doc.getObject("XZ_Plane"), [""])
sketch12.MapMode = "FlatFace"
sketch12.AttachmentOffset = App.Placement(Vector(0, 0, -1.6), App.Rotation())
sketch12.addGeometry(Part.Circle(Vector(3.5, -2.5, 0), Vector(0, 0, 1), 1), False)
sketch12.addConstraint(Sketcher.Constraint("Diameter", 0, 2.0))
sketch12.addConstraint(Sketcher.Constraint("DistanceX", -1, 1, 0, 3, 3.5))
sketch12.addConstraint(Sketcher.Constraint("DistanceY", 0, 3, -1, 1, 2.5))
pocket1 = body.newObject("PartDesign::Pocket", "Pocket")
pocket1.Profile = sketch12
pocket1.Type = "UpToFirst"
pocket1.Reversed = True

# Sketch on XZ plane
sketch13 = body.newObject("Sketcher::SketchObject", "Sketch012")
sketch13.AttachmentSupport = (doc.getObject("XZ_Plane"), [""])
sketch13.MapMode = "FlatFace"
sketch13.AttachmentOffset = App.Placement(Vector(0, 0, -1.6), App.Rotation())
sketch13.addGeometry(Part.Circle(Vector(21.5, -2.5, 0), Vector(0, 0, 1), 1), False)
sketch13.addConstraint(Sketcher.Constraint("Diameter", 0, 2.0))
sketch13.addConstraint(Sketcher.Constraint("DistanceX", -1, 1, 0, 3, 21.5))
sketch13.addConstraint(Sketcher.Constraint("DistanceY", 0, 3, -1, 1, 2.5))
pocket2 = body.newObject("PartDesign::Pocket", "Pocket001")
pocket2.Profile = sketch13
pocket2.Type = "UpToFirst"
pocket2.Reversed = True

# Sketch on XZ plane
sketch14 = body.newObject("Sketcher::SketchObject", "Sketch013")
sketch14.AttachmentSupport = (doc.getObject("XZ_Plane"), [""])
sketch14.MapMode = "FlatFace"
sketch14.AttachmentOffset = App.Placement(Vector(0, 0, -1.6), App.Rotation())
sketch14.addGeometry(Part.Circle(Vector(21.5, -37.5, 0), Vector(0, 0, 1), 1), False)
sketch14.addConstraint(Sketcher.Constraint("Diameter", 0, 2.0))
sketch14.addConstraint(Sketcher.Constraint("DistanceX", -1, 1, 0, 3, 21.5))
sketch14.addConstraint(Sketcher.Constraint("DistanceY", 0, 3, -1, 1, 37.5))
pocket3 = body.newObject("PartDesign::Pocket", "Pocket002")
pocket3.Profile = sketch14
pocket3.Type = "UpToFirst"
pocket3.Reversed = True

doc.recompute()
